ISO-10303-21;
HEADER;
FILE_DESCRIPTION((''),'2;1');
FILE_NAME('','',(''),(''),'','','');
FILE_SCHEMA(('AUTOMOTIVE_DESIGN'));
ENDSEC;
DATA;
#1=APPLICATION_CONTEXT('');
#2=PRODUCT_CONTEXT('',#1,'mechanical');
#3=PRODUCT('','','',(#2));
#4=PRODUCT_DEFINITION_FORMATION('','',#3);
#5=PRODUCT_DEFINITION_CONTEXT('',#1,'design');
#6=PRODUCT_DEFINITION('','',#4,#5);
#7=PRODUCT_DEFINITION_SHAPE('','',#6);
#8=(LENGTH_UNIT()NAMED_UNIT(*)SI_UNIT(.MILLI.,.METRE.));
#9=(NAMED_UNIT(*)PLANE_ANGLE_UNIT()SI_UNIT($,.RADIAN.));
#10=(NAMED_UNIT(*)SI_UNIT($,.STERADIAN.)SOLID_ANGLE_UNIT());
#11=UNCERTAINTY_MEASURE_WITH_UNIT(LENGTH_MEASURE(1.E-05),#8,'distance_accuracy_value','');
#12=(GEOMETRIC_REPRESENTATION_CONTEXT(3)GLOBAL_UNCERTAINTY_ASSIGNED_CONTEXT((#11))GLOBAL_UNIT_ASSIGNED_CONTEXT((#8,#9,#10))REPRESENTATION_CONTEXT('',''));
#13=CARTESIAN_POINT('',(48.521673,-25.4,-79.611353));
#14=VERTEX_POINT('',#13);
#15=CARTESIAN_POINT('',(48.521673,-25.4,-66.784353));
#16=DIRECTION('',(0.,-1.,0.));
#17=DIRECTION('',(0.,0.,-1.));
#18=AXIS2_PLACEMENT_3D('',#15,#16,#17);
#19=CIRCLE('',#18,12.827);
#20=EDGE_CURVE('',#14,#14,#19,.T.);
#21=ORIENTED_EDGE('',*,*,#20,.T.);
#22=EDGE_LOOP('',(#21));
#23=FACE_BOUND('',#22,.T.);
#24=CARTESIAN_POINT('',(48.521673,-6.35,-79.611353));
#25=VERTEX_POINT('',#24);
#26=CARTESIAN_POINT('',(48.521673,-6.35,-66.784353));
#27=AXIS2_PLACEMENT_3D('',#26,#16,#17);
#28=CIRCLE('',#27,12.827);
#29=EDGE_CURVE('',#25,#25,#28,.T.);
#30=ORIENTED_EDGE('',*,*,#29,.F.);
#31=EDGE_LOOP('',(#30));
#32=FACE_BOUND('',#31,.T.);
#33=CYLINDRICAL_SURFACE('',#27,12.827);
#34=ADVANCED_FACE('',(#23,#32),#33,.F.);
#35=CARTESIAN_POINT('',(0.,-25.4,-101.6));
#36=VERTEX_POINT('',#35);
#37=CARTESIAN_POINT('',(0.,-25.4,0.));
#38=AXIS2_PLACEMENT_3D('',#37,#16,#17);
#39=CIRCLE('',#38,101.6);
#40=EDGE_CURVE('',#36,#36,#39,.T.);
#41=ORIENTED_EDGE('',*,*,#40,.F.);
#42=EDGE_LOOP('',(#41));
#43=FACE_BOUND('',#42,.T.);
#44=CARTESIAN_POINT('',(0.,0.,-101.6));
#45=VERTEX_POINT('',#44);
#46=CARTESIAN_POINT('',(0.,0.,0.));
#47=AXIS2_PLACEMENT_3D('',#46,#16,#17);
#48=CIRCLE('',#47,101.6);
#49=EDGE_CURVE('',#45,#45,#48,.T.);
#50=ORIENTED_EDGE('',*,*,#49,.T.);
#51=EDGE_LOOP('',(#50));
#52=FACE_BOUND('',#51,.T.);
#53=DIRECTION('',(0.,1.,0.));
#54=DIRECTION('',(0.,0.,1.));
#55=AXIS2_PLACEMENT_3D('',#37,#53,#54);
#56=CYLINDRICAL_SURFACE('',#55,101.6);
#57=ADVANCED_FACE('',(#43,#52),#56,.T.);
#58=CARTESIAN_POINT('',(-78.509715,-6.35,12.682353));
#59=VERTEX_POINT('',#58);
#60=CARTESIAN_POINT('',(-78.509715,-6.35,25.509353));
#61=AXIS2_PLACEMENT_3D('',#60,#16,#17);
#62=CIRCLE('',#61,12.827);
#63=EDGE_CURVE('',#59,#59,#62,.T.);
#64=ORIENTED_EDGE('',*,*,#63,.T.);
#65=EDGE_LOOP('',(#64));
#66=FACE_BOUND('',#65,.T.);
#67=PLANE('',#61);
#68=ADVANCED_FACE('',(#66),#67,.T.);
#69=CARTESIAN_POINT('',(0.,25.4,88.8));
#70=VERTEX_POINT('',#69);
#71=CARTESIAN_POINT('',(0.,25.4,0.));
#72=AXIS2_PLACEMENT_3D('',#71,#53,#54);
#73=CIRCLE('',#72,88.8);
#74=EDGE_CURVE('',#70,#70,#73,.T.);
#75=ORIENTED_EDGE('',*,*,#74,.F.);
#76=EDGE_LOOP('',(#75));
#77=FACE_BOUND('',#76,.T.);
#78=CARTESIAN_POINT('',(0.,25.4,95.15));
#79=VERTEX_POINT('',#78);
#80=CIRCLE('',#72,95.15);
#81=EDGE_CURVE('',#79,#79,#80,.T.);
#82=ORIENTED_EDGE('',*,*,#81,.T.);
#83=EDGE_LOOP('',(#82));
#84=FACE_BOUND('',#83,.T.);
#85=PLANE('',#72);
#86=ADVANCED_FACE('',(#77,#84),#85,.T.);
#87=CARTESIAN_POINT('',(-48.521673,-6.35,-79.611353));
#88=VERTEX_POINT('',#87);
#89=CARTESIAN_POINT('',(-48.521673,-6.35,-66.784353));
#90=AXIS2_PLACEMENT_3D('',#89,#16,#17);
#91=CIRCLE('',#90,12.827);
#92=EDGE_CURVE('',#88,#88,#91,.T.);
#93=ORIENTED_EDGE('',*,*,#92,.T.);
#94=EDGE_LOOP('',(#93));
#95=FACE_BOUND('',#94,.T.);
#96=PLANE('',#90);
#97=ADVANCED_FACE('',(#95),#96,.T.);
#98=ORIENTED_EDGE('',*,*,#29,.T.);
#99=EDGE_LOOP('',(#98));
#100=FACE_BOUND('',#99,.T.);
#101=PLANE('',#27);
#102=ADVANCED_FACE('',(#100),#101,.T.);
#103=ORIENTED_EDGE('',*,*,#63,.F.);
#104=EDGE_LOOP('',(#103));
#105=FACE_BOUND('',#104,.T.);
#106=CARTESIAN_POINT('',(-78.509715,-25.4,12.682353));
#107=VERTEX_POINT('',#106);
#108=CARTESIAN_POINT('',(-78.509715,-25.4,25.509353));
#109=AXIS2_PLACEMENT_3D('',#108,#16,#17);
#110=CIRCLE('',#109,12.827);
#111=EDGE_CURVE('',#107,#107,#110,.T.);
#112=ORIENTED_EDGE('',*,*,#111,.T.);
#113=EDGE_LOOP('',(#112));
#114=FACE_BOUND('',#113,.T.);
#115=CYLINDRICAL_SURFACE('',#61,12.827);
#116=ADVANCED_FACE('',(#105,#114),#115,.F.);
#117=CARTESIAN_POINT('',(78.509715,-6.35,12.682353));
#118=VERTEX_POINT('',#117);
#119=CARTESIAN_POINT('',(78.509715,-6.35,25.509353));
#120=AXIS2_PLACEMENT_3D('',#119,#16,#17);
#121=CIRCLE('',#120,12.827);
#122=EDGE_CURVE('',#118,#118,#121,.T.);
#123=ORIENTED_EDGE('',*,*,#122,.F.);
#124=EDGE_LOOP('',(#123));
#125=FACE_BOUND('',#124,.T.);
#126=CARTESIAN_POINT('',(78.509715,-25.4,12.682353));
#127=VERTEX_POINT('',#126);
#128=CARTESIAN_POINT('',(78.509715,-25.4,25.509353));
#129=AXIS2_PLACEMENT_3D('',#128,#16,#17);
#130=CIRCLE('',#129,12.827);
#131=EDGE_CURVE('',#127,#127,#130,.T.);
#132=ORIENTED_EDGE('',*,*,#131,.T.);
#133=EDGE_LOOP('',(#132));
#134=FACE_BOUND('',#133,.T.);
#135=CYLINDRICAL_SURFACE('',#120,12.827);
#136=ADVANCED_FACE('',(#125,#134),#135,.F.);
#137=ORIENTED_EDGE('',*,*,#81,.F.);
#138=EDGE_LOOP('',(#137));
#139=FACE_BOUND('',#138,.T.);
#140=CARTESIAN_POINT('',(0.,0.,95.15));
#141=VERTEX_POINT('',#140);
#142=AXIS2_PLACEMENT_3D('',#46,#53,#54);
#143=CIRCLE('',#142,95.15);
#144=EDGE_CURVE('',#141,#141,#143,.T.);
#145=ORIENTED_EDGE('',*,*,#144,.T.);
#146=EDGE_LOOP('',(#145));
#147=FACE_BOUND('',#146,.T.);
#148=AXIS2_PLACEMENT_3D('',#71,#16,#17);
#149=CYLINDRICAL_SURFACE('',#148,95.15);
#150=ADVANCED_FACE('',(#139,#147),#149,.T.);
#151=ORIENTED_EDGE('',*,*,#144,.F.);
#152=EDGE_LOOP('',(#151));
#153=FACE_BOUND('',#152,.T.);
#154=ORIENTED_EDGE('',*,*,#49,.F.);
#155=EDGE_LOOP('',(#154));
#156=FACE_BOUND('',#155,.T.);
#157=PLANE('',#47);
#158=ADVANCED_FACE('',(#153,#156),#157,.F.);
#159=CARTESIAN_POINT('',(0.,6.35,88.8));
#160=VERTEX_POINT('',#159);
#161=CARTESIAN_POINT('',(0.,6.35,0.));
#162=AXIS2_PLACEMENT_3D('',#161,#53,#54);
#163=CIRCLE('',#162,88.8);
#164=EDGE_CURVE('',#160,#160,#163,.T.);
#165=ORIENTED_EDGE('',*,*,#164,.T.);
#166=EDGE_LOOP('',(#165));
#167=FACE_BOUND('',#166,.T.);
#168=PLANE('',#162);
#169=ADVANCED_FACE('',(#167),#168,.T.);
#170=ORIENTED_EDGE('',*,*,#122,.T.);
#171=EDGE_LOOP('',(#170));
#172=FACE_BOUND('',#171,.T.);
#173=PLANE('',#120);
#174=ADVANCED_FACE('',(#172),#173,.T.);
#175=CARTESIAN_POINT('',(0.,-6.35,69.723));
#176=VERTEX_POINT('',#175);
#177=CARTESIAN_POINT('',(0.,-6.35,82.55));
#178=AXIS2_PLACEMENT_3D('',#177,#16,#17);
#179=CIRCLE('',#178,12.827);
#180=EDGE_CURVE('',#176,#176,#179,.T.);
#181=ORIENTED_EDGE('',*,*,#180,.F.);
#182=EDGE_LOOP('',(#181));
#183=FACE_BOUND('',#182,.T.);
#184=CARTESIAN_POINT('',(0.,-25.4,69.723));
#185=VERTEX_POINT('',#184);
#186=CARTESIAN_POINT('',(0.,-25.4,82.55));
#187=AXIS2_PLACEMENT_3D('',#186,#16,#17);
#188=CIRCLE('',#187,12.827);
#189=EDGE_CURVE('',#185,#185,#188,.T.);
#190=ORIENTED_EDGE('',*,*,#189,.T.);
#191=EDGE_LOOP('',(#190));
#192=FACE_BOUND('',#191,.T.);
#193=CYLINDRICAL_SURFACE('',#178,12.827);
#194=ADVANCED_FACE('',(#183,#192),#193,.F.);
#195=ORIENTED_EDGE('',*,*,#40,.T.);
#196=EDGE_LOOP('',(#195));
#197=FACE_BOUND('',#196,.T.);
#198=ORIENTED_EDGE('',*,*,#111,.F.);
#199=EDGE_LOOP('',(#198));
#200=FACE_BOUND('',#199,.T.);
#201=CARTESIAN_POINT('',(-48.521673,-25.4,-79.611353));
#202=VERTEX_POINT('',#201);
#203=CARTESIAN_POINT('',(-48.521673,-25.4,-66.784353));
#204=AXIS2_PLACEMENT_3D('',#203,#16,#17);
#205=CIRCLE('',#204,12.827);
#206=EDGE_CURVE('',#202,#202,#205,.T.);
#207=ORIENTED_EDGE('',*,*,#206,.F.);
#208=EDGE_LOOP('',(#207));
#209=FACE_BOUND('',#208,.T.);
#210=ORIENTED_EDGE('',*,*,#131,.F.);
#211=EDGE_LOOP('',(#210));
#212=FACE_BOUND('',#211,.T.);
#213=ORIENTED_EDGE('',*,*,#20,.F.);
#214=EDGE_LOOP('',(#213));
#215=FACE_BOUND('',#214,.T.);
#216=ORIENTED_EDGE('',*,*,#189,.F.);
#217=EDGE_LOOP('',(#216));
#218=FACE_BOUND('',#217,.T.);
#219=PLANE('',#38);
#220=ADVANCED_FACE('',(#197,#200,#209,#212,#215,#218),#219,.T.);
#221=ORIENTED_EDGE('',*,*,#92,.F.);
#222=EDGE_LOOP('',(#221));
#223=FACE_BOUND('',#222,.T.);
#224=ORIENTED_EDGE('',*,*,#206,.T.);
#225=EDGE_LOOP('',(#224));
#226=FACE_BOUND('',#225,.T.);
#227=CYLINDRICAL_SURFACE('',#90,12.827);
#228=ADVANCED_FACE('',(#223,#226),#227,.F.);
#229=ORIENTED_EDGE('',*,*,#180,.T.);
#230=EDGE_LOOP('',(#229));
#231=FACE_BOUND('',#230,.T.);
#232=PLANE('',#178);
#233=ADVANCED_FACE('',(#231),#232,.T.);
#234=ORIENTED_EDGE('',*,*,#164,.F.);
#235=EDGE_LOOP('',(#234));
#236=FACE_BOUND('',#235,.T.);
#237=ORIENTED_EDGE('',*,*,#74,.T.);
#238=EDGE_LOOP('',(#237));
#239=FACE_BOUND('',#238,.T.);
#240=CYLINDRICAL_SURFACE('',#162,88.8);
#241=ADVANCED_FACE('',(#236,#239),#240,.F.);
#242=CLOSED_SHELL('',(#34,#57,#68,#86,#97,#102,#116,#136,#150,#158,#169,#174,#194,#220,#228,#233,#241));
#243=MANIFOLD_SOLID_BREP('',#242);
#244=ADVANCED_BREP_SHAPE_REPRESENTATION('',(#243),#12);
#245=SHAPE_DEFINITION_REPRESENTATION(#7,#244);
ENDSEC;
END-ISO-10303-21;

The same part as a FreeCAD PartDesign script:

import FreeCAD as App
import Part
import Sketcher
Q = App.Units.Quantity

doc = App.newDocument("Part")
body = doc.addObject("PartDesign::Body", "Body")

# Sketch on XZ plane
sketch1 = doc.addObject("Sketcher::SketchObject", "Sketch")
body.addObject(sketch1)
sketch1.AttachmentSupport = (doc.XZ_Plane, [""])
sketch1.MapMode = "FlatFace"
sketch1.addGeometry(Part.Circle(App.Vector(0, 0, 0), App.Vector(0, 0, 1), 95.15), False)
sketch1.addConstraint([
    Sketcher.Constraint("Coincident", 0, 3, -1, 1),
    Sketcher.Constraint("Diameter", 0, 190.3),
])
pad1 = doc.addObject("PartDesign::Pad", "Pad")
body.addObject(pad1)
pad1.Profile = sketch1
pad1.Length = Q("1 in")
pad1.Reversed = True

# Sketch on XZ plane
sketch2 = doc.addObject("Sketcher::SketchObject", "Sketch001")
body.addObject(sketch2)
sketch2.AttachmentSupport = (doc.XZ_Plane, [""])
sketch2.MapMode = "FlatFace"
sketch2.AttachmentOffset = App.Placement(App.Vector(0, 0, -1 * 25.4), App.Rotation())
sketch2.addGeometry(Part.Circle(App.Vector(0, 0, 0), App.Vector(0, 0, 1), 88.8), False)
sketch2.addConstraint([
    Sketcher.Constraint("Coincident", 0, 3, -1, 1),
    Sketcher.Constraint("Diameter", 0, 177.6),
])
pocket1 = doc.addObject("PartDesign::Pocket", "Pocket")
body.addObject(pocket1)
pocket1.Profile = sketch2
pocket1.Length = Q("0.75 in")
pocket1.Reversed = True

# Sketch on XZ plane
sketch3 = doc.addObject("Sketcher::SketchObject", "Sketch002")
body.addObject(sketch3)
sketch3.AttachmentSupport = (doc.XZ_Plane, [""])
sketch3.MapMode = "FlatFace"
sketch3.addGeometry(Part.Circle(App.Vector(0, 0, 0), App.Vector(0, 0, 1), 101.6), False)
sketch3.addConstraint([
    Sketcher.Constraint("Coincident", 0, 3, -1, 1),
    Sketcher.Constraint("Diameter", 0, Q("8 in")),
])
pad2 = doc.addObject("PartDesign::Pad", "Pad001")
body.addObject(pad2)
pad2.Profile = sketch3
pad2.Length = Q("1 in")

# Sketch on XZ plane
sketch4 = doc.addObject("Sketcher::SketchObject", "Sketch003")
body.addObject(sketch4)
sketch4.AttachmentSupport = (doc.XZ_Plane, [""])
sketch4.MapMode = "FlatFace"
sketch4.AttachmentOffset = App.Placement(App.Vector(0, 0, 1 * 25.4), App.Rotation())
sketch4.addGeometry([
    Part.Circle(App.Vector(0, 82.55, 0), App.Vector(0, 0, 1), 12.827),  # 0
    Part.Circle(App.Vector(78.509715, 25.509353, 0), App.Vector(0, 0, 1), 12.827),  # 1
    Part.Circle(App.Vector(48.521673, -66.784353, 0), App.Vector(0, 0, 1), 12.827),  # 2
    Part.Circle(App.Vector(-48.521673, -66.784353, 0), App.Vector(0, 0, 1), 12.827),  # 3
    Part.Circle(App.Vector(-78.509715, 25.509353, 0), App.Vector(0, 0, 1), 12.827),  # 4
], False)
sketch4.addConstraint([
    Sketcher.Constraint("Equal", 0, 1),
    Sketcher.Constraint("Equal", 1, 2),
    Sketcher.Constraint("Equal", 2, 3),
    Sketcher.Constraint("Equal", 3, 4),
    Sketcher.Constraint("Symmetric", 2, 3, 3, 3, -2),
    Sketcher.Constraint("Symmetric", 1, 3, 4, 3, -2),
    Sketcher.Constraint("PointOnObject", 0, 3, -2),
    Sketcher.Constraint("Diameter", 0, Q("1.01 in")),
    Sketcher.Constraint("DistanceY", -1, 1, 0, 3, Q("3.25 in")),
    Sketcher.Constraint("DistanceX", 4, 3, 1, 3, 157.019431),
    Sketcher.Constraint("DistanceY", -1, 1, 1, 3, 25.509353),
    Sketcher.Constraint("DistanceX", -1, 1, 2, 3, 48.521673),
    Sketcher.Constraint("DistanceY", 2, 3, -1, 1, 66.784353),
])
pocket2 = doc.addObject("PartDesign::Pocket", "Pocket001")
body.addObject(pocket2)
pocket2.Profile = sketch4
pocket2.Length = Q("0.75 in")

doc.recompute()
